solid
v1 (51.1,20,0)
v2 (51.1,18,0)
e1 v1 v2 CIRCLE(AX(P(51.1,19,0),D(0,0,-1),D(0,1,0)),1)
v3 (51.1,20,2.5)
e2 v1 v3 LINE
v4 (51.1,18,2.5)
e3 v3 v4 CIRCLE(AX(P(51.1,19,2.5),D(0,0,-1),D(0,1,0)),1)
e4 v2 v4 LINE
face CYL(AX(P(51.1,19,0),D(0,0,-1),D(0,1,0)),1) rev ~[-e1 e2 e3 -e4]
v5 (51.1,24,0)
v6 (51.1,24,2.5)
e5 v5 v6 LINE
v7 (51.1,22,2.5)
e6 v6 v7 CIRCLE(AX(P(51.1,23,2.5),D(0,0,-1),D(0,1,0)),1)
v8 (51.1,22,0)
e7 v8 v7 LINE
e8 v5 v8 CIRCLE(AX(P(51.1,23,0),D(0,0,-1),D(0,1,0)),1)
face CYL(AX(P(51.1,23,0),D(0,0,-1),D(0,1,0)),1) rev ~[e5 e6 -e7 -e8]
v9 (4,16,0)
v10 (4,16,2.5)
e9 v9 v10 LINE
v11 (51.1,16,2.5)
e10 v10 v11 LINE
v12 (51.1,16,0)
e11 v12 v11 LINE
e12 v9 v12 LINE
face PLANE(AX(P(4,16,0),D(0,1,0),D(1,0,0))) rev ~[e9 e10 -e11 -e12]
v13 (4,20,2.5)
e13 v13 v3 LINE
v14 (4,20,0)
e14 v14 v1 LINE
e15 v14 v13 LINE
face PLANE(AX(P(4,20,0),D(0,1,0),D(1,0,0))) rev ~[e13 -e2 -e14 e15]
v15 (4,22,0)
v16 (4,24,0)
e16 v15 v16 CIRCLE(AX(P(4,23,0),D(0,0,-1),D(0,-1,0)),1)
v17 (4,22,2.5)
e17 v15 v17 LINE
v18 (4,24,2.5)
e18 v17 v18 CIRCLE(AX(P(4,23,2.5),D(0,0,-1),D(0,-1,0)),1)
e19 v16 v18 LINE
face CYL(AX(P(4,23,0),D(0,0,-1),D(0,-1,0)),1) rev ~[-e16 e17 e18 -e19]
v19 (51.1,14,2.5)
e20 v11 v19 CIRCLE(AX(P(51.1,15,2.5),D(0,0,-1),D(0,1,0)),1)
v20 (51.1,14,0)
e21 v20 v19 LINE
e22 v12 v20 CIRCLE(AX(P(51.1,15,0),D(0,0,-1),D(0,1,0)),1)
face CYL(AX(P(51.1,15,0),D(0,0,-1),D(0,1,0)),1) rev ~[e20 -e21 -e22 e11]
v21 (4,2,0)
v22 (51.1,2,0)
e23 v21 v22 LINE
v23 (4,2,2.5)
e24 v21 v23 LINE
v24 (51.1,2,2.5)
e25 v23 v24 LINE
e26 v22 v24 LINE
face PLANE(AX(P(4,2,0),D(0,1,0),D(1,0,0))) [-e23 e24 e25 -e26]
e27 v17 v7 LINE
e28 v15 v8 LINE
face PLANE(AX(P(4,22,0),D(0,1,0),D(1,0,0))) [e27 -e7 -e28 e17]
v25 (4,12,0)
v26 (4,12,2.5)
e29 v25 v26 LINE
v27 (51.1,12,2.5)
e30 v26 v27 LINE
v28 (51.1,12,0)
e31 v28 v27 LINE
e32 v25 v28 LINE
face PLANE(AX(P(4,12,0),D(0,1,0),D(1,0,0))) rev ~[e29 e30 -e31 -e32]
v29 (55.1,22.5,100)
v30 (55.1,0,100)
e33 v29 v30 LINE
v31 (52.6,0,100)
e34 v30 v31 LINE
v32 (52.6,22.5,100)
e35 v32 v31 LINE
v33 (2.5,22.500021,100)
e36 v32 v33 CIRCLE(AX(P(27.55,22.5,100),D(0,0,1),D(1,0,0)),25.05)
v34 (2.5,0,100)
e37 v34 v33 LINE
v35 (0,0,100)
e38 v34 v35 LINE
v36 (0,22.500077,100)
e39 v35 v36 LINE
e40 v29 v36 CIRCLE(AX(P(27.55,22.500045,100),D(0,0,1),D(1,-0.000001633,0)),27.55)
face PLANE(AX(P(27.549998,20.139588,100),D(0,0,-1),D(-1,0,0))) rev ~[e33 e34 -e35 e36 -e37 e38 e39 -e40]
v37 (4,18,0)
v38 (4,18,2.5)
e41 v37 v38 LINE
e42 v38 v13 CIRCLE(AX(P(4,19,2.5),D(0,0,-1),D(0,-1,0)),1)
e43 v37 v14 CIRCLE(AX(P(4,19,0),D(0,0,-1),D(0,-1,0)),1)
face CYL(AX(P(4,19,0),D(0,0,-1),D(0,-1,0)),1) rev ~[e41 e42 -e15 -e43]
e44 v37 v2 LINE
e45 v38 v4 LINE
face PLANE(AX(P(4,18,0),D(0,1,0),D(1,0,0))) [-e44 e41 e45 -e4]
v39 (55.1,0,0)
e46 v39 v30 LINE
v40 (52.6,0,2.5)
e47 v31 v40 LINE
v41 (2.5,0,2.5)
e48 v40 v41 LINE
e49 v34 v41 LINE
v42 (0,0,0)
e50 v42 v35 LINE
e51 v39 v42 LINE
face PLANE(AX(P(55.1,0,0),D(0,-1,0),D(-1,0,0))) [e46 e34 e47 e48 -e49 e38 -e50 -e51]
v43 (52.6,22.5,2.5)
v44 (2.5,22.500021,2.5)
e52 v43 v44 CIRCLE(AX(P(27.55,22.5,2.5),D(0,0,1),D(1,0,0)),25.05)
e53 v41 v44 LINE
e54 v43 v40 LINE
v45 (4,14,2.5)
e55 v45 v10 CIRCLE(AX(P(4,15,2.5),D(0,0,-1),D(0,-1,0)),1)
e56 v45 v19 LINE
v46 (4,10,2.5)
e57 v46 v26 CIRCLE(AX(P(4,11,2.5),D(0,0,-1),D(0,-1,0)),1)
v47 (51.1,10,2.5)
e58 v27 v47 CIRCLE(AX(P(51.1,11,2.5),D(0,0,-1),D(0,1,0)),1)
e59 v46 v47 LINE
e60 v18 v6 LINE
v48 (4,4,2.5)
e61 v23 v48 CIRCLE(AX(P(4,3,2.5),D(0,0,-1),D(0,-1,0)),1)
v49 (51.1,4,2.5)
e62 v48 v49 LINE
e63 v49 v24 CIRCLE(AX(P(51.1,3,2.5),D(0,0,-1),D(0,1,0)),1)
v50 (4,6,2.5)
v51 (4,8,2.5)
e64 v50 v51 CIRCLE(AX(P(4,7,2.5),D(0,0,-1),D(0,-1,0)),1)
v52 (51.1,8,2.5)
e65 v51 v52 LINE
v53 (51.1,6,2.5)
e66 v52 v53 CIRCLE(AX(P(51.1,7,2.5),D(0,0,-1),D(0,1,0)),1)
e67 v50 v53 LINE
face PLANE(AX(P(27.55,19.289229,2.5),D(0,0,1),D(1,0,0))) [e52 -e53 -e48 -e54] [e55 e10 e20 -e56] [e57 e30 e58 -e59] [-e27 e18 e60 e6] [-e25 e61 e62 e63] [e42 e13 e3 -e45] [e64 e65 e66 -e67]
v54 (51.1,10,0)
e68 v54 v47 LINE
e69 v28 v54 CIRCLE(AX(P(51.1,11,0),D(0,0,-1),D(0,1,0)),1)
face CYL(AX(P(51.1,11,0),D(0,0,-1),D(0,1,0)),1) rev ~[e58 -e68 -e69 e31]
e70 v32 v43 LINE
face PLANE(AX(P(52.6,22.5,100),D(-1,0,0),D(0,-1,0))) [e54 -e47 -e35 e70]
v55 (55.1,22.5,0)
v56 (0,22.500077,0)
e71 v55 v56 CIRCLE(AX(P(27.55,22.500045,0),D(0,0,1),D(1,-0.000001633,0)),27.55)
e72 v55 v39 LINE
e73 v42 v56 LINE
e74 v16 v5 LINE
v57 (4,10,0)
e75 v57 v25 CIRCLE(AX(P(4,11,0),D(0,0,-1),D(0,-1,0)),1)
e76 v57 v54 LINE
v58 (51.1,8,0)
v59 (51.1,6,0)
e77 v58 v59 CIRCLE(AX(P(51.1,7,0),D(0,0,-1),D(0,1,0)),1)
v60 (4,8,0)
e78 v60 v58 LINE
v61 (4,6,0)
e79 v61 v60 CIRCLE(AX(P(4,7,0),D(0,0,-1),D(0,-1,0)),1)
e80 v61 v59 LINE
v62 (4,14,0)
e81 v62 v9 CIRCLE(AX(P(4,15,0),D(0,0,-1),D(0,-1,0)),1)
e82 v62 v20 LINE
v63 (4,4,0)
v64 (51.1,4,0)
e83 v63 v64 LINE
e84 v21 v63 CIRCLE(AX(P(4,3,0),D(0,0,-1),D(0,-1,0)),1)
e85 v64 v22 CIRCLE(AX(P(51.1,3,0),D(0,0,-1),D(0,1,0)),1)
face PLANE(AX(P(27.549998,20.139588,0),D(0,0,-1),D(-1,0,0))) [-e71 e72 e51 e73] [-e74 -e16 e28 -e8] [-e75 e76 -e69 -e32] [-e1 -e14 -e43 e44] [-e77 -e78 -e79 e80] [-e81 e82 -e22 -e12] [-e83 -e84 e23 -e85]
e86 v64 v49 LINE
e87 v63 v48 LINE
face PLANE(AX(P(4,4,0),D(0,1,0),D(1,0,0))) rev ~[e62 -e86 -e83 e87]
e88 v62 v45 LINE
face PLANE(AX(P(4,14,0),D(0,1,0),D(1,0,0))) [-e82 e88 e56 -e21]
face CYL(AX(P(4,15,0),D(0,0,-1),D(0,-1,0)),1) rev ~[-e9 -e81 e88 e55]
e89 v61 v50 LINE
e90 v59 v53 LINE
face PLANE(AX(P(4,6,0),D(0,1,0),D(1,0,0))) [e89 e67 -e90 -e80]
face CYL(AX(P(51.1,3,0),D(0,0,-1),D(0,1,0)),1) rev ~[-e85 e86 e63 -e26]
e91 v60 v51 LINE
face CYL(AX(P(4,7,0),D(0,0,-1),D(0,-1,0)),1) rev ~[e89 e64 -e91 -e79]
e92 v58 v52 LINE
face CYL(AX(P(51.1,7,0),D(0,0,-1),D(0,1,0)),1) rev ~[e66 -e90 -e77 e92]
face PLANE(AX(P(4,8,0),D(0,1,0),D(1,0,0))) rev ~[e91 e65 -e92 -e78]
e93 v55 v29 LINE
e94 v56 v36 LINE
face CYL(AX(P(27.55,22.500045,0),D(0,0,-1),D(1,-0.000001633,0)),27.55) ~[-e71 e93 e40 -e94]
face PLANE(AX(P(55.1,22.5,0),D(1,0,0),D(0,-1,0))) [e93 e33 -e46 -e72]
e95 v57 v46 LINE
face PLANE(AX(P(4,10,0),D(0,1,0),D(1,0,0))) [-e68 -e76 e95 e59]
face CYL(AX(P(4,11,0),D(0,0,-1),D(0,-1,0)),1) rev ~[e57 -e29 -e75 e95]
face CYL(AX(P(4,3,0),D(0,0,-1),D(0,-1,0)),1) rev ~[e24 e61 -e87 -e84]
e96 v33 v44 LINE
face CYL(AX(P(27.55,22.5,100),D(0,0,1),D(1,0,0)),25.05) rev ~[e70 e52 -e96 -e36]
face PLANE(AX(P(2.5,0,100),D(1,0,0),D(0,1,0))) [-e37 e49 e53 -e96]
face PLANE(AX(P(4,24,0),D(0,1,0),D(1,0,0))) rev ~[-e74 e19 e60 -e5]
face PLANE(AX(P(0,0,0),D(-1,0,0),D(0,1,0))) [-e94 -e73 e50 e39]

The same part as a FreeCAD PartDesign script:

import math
import FreeCAD as App
import Part
import Sketcher

V = App.Vector

doc = App.newDocument("Part")
params = doc.addObject("Spreadsheet::Sheet", "Params")
for row, (alias, value) in enumerate([
    ("sketch1_radius", "27.55 mm"),
    ("sketch1_height", "22.5 mm"),
    ("pad1_length", "100 mm"),
    ("sketch2_radius", "25.05 mm"),
    ("sketch2_height", "22.5 mm"),
    ("pocket1_length", "97.5 mm"),
    ("sketch3_radius", "1 mm"),
    ("sketch3_width", "47.1 mm"),
    ("pocket2_length", "2.5 mm"),
    ("linearpattern_pitch", "4 mm"),
], start=1):
    params.set(f"A{row}", alias)
    params.set(f"B{row}", "=" + value)
    params.setAlias(f"B{row}", alias)

body = doc.addObject("PartDesign::Body", "Body")

# Sketch on XY plane
sketch1 = body.newObject("Sketcher::SketchObject", "Sketch")
sketch1.AttachmentSupport = (doc.getObject("XY_Plane"), [""])
sketch1.MapMode = "FlatFace"
sketch1.addGeometry(Part.LineSegment(V(55.1, 0, 0), V(55.1, 22.5, 0)), False)
sketch1.addGeometry(Part.ArcOfCircle(Part.Circle(V(27.55, 22.500045, 0), V(0, 0, 1), 27.55), math.radians(-0.000094), math.radians(179.999933)), False)
sketch1.addGeometry(Part.LineSegment(V(0, 22.500077, 0), V(0, 0, 0)), False)
sketch1.addGeometry(Part.LineSegment(V(0, 0, 0), V(55.1, 0, 0)), False)
sketch1.addConstraint(Sketcher.Constraint("Coincident", 0, 2, 1, 1))
sketch1.addConstraint(Sketcher.Constraint("Coincident", 1, 2, 2, 1))
sketch1.addConstraint(Sketcher.Constraint("Coincident", 2, 2, 3, 1))
sketch1.addConstraint(Sketcher.Constraint("Coincident", 3, 2, 0, 1))
sketch1.addConstraint(Sketcher.Constraint("Vertical", 0))
sketch1.addConstraint(Sketcher.Constraint("Vertical", 2))
sketch1.addConstraint(Sketcher.Constraint("Horizontal", 3))
sketch1.addConstraint(Sketcher.Constraint("Coincident", 2, 2, -1, 1))
sketch1.addConstraint(Sketcher.Constraint("Radius", 1, 27.55))
sketch1.addConstraint(Sketcher.Constraint("DistanceY", 0, 1, 0, 2, 22.5))
sketch1.addConstraint(Sketcher.Constraint("DistanceY", 2, 2, 2, 1, 22.500077))
sketch1.addConstraint(Sketcher.Constraint("DistanceY", -1, 1, 1, 3, 22.500045))
sketch1.setExpression("Constraints[8]", "Params.sketch1_radius")
sketch1.setExpression("Constraints[9]", "Params.sketch1_height")
pad1 = body.newObject("PartDesign::Pad", "Pad")
pad1.Profile = sketch1
pad1.setExpression("Length", "Params.pad1_length")

# Sketch on XY plane
sketch2 = body.newObject("Sketcher::SketchObject", "Sketch001")
sketch2.AttachmentSupport = (doc.getObject("XY_Plane"), [""])
sketch2.MapMode = "FlatFace"
sketch2.AttachmentOffset = App.Placement(V(0, 0, 100), App.Rotation())
sketch2.addGeometry(Part.ArcOfCircle(Part.Circle(V(27.55, 22.5, 0), V(0, 0, 1), 25.05), math.radians(0), math.radians(179.999952)), False)
sketch2.addGeometry(Part.LineSegment(V(2.5, 22.500021, 0), V(2.5, 0, 0)), False)
sketch2.addGeometry(Part.LineSegment(V(2.5, 0, 0), V(52.6, 0, 0)), False)
sketch2.addGeometry(Part.LineSegment(V(52.6, 0, 0), V(52.6, 22.5, 0)), False)
sketch2.addConstraint(Sketcher.Constraint("Coincident", 0, 2, 1, 1))
sketch2.addConstraint(Sketcher.Constraint("Coincident", 1, 2, 2, 1))
sketch2.addConstraint(Sketcher.Constraint("Coincident", 2, 2, 3, 1))
sketch2.addConstraint(Sketcher.Constraint("Coincident", 3, 2, 0, 1))
sketch2.addConstraint(Sketcher.Constraint("Vertical", 1))
sketch2.addConstraint(Sketcher.Constraint("Horizontal", 2))
sketch2.addConstraint(Sketcher.Constraint("Vertical", 3))
sketch2.addConstraint(Sketcher.Constraint("PointOnObject", 1, 2, -1))
sketch2.addConstraint(Sketcher.Constraint("Radius", 0, 25.05))
sketch2.addConstraint(Sketcher.Constraint("DistanceY", 3, 1, 3, 2, 22.5))
sketch2.addConstraint(Sketcher.Constraint("DistanceY", -1, 1, 0, 3, 22.5))
sketch2.addConstraint(Sketcher.Constraint("DistanceX", -1, 1, 0, 2, 2.5))
sketch2.addConstraint(Sketcher.Constraint("DistanceY", 1, 2, 1, 1, 22.500021))
sketch2.setExpression("Constraints[8]", "Params.sketch2_radius")
sketch2.setExpression("Constraints[9]", "Params.sketch2_height")
pocket1 = body.newObject("PartDesign::Pocket", "Pocket")
pocket1.Profile = sketch2
pocket1.setExpression("Length", "Params.pocket1_length")

# Sketch on XY plane
sketch3 = body.newObject("Sketcher::SketchObject", "Sketch002")
sketch3.AttachmentSupport = (doc.getObject("XY_Plane"), [""])
sketch3.MapMode = "FlatFace"
sketch3.addGeometry(Part.ArcOfCircle(Part.Circle(V(4, 3, 0), V(0, 0, 1), 1), math.radians(90), math.radians(270)), False)
sketch3.addGeometry(Part.LineSegment(V(4, 4, 0), V(51.1, 4, 0)), False)
sketch3.addGeometry(Part.ArcOfCircle(Part.Circle(V(51.1, 3, 0), V(0, 0, 1), 1), math.radians(-90), math.radians(90)), False)
sketch3.addGeometry(Part.LineSegment(V(51.1, 2, 0), V(4, 2, 0)), False)
sketch3.addConstraint(Sketcher.Constraint("Tangent", 0, 1, 1, 1))
sketch3.addConstraint(Sketcher.Constraint("Tangent", 1, 2, 2, 2))
sketch3.addConstraint(Sketcher.Constraint("Tangent", 2, 1, 3, 1))
sketch3.addConstraint(Sketcher.Constraint("Tangent", 3, 2, 0, 2))
sketch3.addConstraint(Sketcher.Constraint("Horizontal", 1))
sketch3.addConstraint(Sketcher.Constraint("Horizontal", 3))
sketch3.addConstraint(Sketcher.Constraint("Radius", 0, 1.0))
sketch3.addConstraint(Sketcher.Constraint("DistanceX", 1, 1, 1, 2, 47.1))
sketch3.addConstraint(Sketcher.Constraint("DistanceX", -1, 1, 0, 3, 4.0))
sketch3.addConstraint(Sketcher.Constraint("DistanceY", -1, 1, 0, 3, 3.0))
sketch3.setExpression("Constraints[6]", "Params.sketch3_radius")
sketch3.setExpression("Constraints[7]", "Params.sketch3_width")
pocket2 = body.newObject("PartDesign::Pocket", "Pocket001")
pocket2.Profile = sketch3
pocket2.setExpression("Length", "Params.pocket2_length")
pocket2.Reversed = True
doc.recompute()

linearpattern = body.newObject("PartDesign::LinearPattern", "LinearPattern")
linearpattern.Originals = [pocket2]
linearpattern.Direction = (doc.getObject("Y_Axis"), [""])
linearpattern.Mode = "offset"
linearpattern.setExpression("Offset", "Params.linearpattern_pitch")
linearpattern.Occurrences = 6
body.Tip = linearpattern

doc.recompute()
